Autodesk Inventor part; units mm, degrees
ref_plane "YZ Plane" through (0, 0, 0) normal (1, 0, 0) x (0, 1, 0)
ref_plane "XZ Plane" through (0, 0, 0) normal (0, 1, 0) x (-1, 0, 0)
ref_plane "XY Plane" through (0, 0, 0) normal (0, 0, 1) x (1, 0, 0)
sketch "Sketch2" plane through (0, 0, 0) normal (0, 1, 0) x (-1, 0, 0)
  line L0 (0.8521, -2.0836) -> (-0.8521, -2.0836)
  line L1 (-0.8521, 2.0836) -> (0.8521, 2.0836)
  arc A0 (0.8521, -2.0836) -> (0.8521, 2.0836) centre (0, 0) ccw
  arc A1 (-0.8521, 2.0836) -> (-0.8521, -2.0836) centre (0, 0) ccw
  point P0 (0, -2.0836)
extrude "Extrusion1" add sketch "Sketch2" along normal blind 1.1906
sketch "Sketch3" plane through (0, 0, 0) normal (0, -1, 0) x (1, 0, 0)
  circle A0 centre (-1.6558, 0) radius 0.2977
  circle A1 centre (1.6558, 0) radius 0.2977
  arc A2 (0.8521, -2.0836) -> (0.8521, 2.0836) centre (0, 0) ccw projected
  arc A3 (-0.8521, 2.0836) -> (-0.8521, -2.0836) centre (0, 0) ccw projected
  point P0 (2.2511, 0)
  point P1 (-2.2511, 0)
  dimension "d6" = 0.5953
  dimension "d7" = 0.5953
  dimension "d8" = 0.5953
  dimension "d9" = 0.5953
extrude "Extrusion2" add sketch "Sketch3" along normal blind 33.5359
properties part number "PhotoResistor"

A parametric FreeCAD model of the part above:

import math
import FreeCAD as App
import Part
import Sketcher
from FreeCAD import Vector
Q = App.Units.Quantity

doc = App.newDocument("Part")
params = doc.addObject("Spreadsheet::Sheet", "Params")
for row, (alias, value) in enumerate([
    ("pad1_length", "0.046874 in"),
    ("pad2_length", "1.320311 in"),
], start=1):
    params.set(f"A{row}", alias)
    params.set(f"B{row}", "=" + value)
    params.setAlias(f"B{row}", alias)

body = doc.addObject("PartDesign::Body", "Body")

# Sketch on XZ plane
sketch1 = doc.addObject("Sketcher::SketchObject", "Sketch")
body.addObject(sketch1)
sketch1.AttachmentSupport = (doc.XZ_Plane, [""])
sketch1.MapMode = "FlatFace"
sketch1.addGeometry(Part.LineSegment(Vector(0.9, -2.1, 0), Vector(-0.9, -2.1, 0)), False)
sketch1.addGeometry(Part.ArcOfCircle(Part.Circle(Vector(0, 0, 0), Vector(0, 0, 1), 2.3), math.radians(112), math.radians(248)), False)
sketch1.addGeometry(Part.LineSegment(Vector(-0.9, 2.1, 0), Vector(0.9, 2.1, 0)), False)
sketch1.addGeometry(Part.ArcOfCircle(Part.Circle(Vector(0, 0, 0), Vector(0, 0, 1), 2.3), math.radians(-68), math.radians(68)), False)
sketch1.addConstraint(Sketcher.Constraint("Coincident", 0, 2, 1, 2))
sketch1.addConstraint(Sketcher.Constraint("Coincident", 1, 1, 2, 1))
sketch1.addConstraint(Sketcher.Constraint("Coincident", 2, 2, 3, 2))
sketch1.addConstraint(Sketcher.Constraint("Coincident", 3, 1, 0, 1))
sketch1.addConstraint(Sketcher.Constraint("Horizontal", 0))
sketch1.addConstraint(Sketcher.Constraint("Horizontal", 2))
sketch1.addConstraint(Sketcher.Constraint("Coincident", 1, 3, -1, 1))
sketch1.addConstraint(Sketcher.Constraint("Coincident", 3, 3, -1, 1))
sketch1.addConstraint(Sketcher.Constraint("Equal", 1, 3))
sketch1.addConstraint(Sketcher.Constraint("Vertical", 0, 2, 1, 1))
sketch1.addConstraint(Sketcher.Constraint("Radius", 1, 2.251))
sketch1.addConstraint(Sketcher.Constraint("DistanceX", 0, 2, 0, 1, Q("0.0671 in")))
pad1 = doc.addObject("PartDesign::Pad", "Pad")
body.addObject(pad1)
pad1.Profile = sketch1
pad1.setExpression("Length", "Params.pad1_length")
pad1.Reversed = True

# Sketch on XZ plane
sketch2 = doc.addObject("Sketcher::SketchObject", "Sketch001")
body.addObject(sketch2)
sketch2.AttachmentSupport = (doc.XZ_Plane, [""])
sketch2.MapMode = "FlatFace"
sketch2.addGeometry(Part.Circle(Vector(-1.66, 0, 0), Vector(0, 0, 1), 0.3), False)
sketch2.addGeometry(Part.Circle(Vector(1.66, 0, 0), Vector(0, 0, 1), 0.3), False)
sketch2.addConstraint(Sketcher.Constraint("Equal", 0, 1))
sketch2.addConstraint(Sketcher.Constraint("Symmetric", 0, 3, 1, 3, -1, 1))
sketch2.addConstraint(Sketcher.Constraint("PointOnObject", 0, 3, -1))
sketch2.addConstraint(Sketcher.Constraint("Diameter", 0, 0.5954))
sketch2.addConstraint(Sketcher.Constraint("DistanceX", 0, 3, -1, 1, Q("0.0652 in")))
pad2 = doc.addObject("PartDesign::Pad", "Pad001")
body.addObject(pad2)
pad2.Profile = sketch2
pad2.setExpression("Length", "Params.pad2_length")

doc.recompute()
